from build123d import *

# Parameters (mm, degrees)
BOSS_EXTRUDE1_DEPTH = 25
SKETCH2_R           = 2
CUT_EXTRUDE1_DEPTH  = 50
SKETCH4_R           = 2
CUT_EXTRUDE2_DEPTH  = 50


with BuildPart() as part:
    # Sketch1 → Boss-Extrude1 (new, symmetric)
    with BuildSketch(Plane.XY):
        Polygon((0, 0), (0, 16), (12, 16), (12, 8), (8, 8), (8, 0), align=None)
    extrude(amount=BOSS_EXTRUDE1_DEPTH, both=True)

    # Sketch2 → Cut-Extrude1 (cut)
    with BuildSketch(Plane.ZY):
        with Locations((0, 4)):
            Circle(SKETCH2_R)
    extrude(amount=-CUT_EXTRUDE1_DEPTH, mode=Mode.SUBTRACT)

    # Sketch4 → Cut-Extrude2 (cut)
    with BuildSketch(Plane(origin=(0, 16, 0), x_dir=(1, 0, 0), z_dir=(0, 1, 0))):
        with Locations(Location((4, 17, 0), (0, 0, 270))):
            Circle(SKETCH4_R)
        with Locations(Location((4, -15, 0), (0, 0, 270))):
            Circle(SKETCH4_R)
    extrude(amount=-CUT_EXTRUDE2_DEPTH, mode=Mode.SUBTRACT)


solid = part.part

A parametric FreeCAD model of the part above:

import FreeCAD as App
import Part
import Sketcher

V = App.Vector


def add_polygon(sketch, points):
    """Adds a closed chain of lines whose ends are joined by coincident constraints."""
    first, n = sketch.GeometryCount, len(points)
    for a, b in zip(points, points[1:] + points[:1]):
        sketch.addGeometry(Part.LineSegment(App.Vector(*a, 0), App.Vector(*b, 0)), False)
    for i in range(n):
        sketch.addConstraint(Sketcher.Constraint("Coincident", first + i, 2, first + (i + 1) % n, 1))

doc = App.newDocument("Part")
body = doc.addObject("PartDesign::Body", "Body")

# Sketch on XY plane
sketch1 = body.newObject("Sketcher::SketchObject", "Sketch")
sketch1.AttachmentSupport = (doc.getObject("XY_Plane"), [""])
sketch1.MapMode = "FlatFace"
add_polygon(sketch1, [(0, 16), (0, 0), (8, 0), (8, 8), (12, 8), (12, 16)])  # lines 0-5
sketch1.addConstraint([
    Sketcher.Constraint("Vertical", 0),
    Sketcher.Constraint("Horizontal", 1),
    Sketcher.Constraint("Vertical", 2),
    Sketcher.Constraint("Horizontal", 3),
    Sketcher.Constraint("Vertical", 4),
    Sketcher.Constraint("Horizontal", 5),
    Sketcher.Constraint("Coincident", 0, 2, -1, 1),
    Sketcher.Constraint("Equal", 1, 2),
    Sketcher.Constraint("Equal", 2, 4),
    Sketcher.Constraint("DistanceX", 1, 1, 1, 2, 8.0),
    Sketcher.Constraint("DistanceX", 3, 1, 3, 2, 4.0),
])
pad1 = body.newObject("PartDesign::Pad", "Pad")
pad1.Profile = sketch1
pad1.Length = 50
pad1.Midplane = True

# Sketch on YZ plane
sketch2 = body.newObject("Sketcher::SketchObject", "Sketch001")
sketch2.AttachmentSupport = (doc.getObject("YZ_Plane"), [""])
sketch2.MapMode = "FlatFace"
sketch2.addGeometry(Part.Circle(V(4, 0, 0), V(0, 0, 1), 2), False)
sketch2.addConstraint([
    Sketcher.Constraint("PointOnObject", 0, 3, -1),
    Sketcher.Constraint("Diameter", 0, 4.0),
    Sketcher.Constraint("DistanceX", -1, 1, 0, 3, 4.0),
])
pocket1 = body.newObject("PartDesign::Pocket", "Pocket")
pocket1.Profile = sketch2
pocket1.Length = 50
pocket1.Reversed = True

# Sketch on XZ plane
sketch3 = body.newObject("Sketcher::SketchObject", "Sketch002")
sketch3.AttachmentSupport = (doc.getObject("XZ_Plane"), [""])
sketch3.MapMode = "FlatFace"
sketch3.AttachmentOffset = App.Placement(V(0, 0, -16), App.Rotation())
sketch3.addGeometry([
    Part.Circle(V(4, -17, 0), V(0, 0, 1), 2),
    Part.Circle(V(4, 15, 0), V(0, 0, 1), 2),
], False)
sketch3.addConstraint([
    Sketcher.Constraint("Equal", 0, 1),
    Sketcher.Constraint("Vertical", 0, 3, 1, 3),
    Sketcher.Constraint("Diameter", 0, 4.0),
    Sketcher.Constraint("DistanceX", -1, 1, 0, 3, 4.0),
    Sketcher.Constraint("DistanceY", 0, 3, -1, 1, 17.0),
    Sketcher.Constraint("DistanceY", -1, 1, 1, 3, 15.0),
])
pocket2 = body.newObject("PartDesign::Pocket", "Pocket001")
pocket2.Profile = sketch3
pocket2.Length = 50
pocket2.Reversed = True

doc.recompute()
